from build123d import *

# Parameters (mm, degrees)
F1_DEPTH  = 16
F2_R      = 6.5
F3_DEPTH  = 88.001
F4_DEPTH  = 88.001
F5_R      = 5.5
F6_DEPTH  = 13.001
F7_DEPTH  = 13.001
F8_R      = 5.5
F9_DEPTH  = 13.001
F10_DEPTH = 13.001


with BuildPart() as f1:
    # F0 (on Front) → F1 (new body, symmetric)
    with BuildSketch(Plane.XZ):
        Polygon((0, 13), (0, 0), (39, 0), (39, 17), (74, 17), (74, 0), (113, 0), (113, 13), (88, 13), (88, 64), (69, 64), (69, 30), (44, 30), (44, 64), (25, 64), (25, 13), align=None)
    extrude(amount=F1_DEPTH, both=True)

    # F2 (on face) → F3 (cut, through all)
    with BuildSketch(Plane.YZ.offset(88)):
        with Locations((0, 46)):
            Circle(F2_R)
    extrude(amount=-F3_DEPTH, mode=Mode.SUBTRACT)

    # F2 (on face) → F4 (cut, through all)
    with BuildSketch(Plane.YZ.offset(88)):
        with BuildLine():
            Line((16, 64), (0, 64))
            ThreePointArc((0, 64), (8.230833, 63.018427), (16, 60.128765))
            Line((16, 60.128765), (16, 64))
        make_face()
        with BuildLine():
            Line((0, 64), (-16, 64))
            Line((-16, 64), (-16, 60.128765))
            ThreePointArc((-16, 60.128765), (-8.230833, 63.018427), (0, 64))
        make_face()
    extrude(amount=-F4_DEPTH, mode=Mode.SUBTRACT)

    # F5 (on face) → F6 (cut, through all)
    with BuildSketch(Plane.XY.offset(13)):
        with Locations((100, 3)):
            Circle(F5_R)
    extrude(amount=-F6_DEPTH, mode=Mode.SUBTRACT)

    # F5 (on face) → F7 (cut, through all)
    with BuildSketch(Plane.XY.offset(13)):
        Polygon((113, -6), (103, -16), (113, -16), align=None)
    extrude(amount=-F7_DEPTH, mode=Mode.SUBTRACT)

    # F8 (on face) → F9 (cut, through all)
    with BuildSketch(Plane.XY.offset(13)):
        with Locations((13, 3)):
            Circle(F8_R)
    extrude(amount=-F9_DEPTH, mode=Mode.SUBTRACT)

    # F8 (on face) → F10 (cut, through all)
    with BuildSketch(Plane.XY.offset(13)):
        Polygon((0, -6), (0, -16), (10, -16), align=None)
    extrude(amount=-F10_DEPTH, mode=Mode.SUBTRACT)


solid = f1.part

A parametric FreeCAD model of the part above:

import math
import FreeCAD as App
import Part
import Sketcher
Q = App.Units.Quantity


def add_polygon(sketch, points):
    """Adds a closed chain of lines whose ends are joined by coincident constraints."""
    first, n = sketch.GeometryCount, len(points)
    for a, b in zip(points, points[1:] + points[:1]):
        sketch.addGeometry(Part.LineSegment(App.Vector(*a, 0), App.Vector(*b, 0)), False)
    for i in range(n):
        sketch.addConstraint(Sketcher.Constraint("Coincident", first + i, 2, first + (i + 1) % n, 1))

doc = App.newDocument("Part")
body = doc.addObject("PartDesign::Body", "Body")

# Sketch on XZ plane
sketch1 = body.newObject("Sketcher::SketchObject", "Sketch")
sketch1.AttachmentSupport = (doc.getObject("XZ_Plane"), [""])
sketch1.MapMode = "FlatFace"
add_polygon(sketch1, [(0, 13), (0, 0), (39, 0), (39, 17), (74, 17), (74, 0), (113, 0), (113, 13), (88, 13), (88, 64), (69, 64), (69, 30), (44, 30), (44, 64), (25, 64), (25, 13)])  # lines 0-15
sketch1.addConstraint([
    Sketcher.Constraint("Vertical", 0),
    Sketcher.Constraint("Horizontal", 1),
    Sketcher.Constraint("Vertical", 2),
    Sketcher.Constraint("Horizontal", 3),
    Sketcher.Constraint("Vertical", 4),
    Sketcher.Constraint("Horizontal", 5),
    Sketcher.Constraint("Vertical", 6),
    Sketcher.Constraint("Horizontal", 7),
    Sketcher.Constraint("Vertical", 8),
    Sketcher.Constraint("Horizontal", 9),
    Sketcher.Constraint("Vertical", 10),
    Sketcher.Constraint("Horizontal", 11),
    Sketcher.Constraint("Vertical", 12),
    Sketcher.Constraint("Horizontal", 13),
    Sketcher.Constraint("Vertical", 14),
    Sketcher.Constraint("Horizontal", 15),
    Sketcher.Constraint("Coincident", 0, 2, -1, 1),
    Sketcher.Constraint("PointOnObject", 4, 2, -1),
    Sketcher.Constraint("Horizontal", 9, 2, 12, 2),
    Sketcher.Constraint("Horizontal", 7, 2, 14, 2),
    Sketcher.Constraint("Equal", 1, 5),
    Sketcher.Constraint("Equal", 7, 11),
    Sketcher.Constraint("Equal", 9, 13),
    Sketcher.Constraint("Equal", 11, 15),
    Sketcher.Constraint("DistanceX", 1, 1, 1, 2, Q("39 mm")),
    Sketcher.Constraint("DistanceX", 3, 1, 3, 2, Q("35 mm")),
    Sketcher.Constraint("DistanceX", 7, 2, 7, 1, Q("25 mm")),
    Sketcher.Constraint("DistanceY", 0, 2, 0, 1, Q("13 mm")),
    Sketcher.Constraint("DistanceY", 2, 1, 2, 2, Q("17 mm")),
    Sketcher.Constraint("DistanceY", 8, 1, 8, 2, Q("51 mm")),
    Sketcher.Constraint("DistanceY", 10, 2, 10, 1, Q("34 mm")),
])
pad1 = body.newObject("PartDesign::Pad", "Pad")
pad1.Profile = sketch1
pad1.Length = 32
pad1.Midplane = True

# Sketch on YZ plane
sketch2 = body.newObject("Sketcher::SketchObject", "Sketch001")
sketch2.AttachmentSupport = (doc.getObject("YZ_Plane"), [""])
sketch2.MapMode = "FlatFace"
sketch2.AttachmentOffset = App.Placement(App.Vector(0, 0, 88), App.Rotation())
sketch2.addGeometry(Part.Circle(App.Vector(0, 46, 0), App.Vector(0, 0, 1), 6), False)
sketch2.addConstraint([
    Sketcher.Constraint("PointOnObject", 0, 3, -2),
    Sketcher.Constraint("Diameter", 0, Q("13 mm")),
    Sketcher.Constraint("DistanceY", -1, 1, 0, 3, Q("46 mm")),
])
pocket1 = body.newObject("PartDesign::Pocket", "Pocket")
pocket1.Profile = sketch2
pocket1.Type = "ThroughAll"

# Sketch on YZ plane
sketch3 = body.newObject("Sketcher::SketchObject", "Sketch002")
sketch3.AttachmentSupport = (doc.getObject("YZ_Plane"), [""])
sketch3.MapMode = "FlatFace"
sketch3.AttachmentOffset = App.Placement(App.Vector(0, 0, 88), App.Rotation())
sketch3.addGeometry([
    Part.LineSegment(App.Vector(16, 64, 0), App.Vector(0, 64, 0)),  # 0
    Part.ArcOfCircle(Part.Circle(App.Vector(0, 29, 0), App.Vector(0, 0, 1), 35), math.radians(63), math.radians(90)),  # 1
    Part.LineSegment(App.Vector(16, 60.1, 0), App.Vector(16, 64, 0)),  # 2
    Part.LineSegment(App.Vector(0, 64, 0), App.Vector(-16, 64, 0)),  # 3
    Part.LineSegment(App.Vector(-16, 64, 0), App.Vector(-16, 60.1, 0)),  # 4
    Part.ArcOfCircle(Part.Circle(App.Vector(0, 29, 0), App.Vector(0, 0, 1), 35), math.radians(90), math.radians(117)),  # 5
], False)
sketch3.addConstraint([
    Sketcher.Constraint("Tangent", 0, 2, 1, 2),
    Sketcher.Constraint("Coincident", 1, 1, 2, 1),
    Sketcher.Constraint("Coincident", 2, 2, 0, 1),
    Sketcher.Constraint("Coincident", 3, 2, 4, 1),
    Sketcher.Constraint("Coincident", 4, 2, 5, 2),
    Sketcher.Constraint("Tangent", 5, 1, 3, 1),
    Sketcher.Constraint("Horizontal", 0),
    Sketcher.Constraint("Vertical", 2),
    Sketcher.Constraint("Horizontal", 3),
    Sketcher.Constraint("Vertical", 4),
    Sketcher.Constraint("Coincident", 5, 3, 1, 3),
    Sketcher.Constraint("Equal", 1, 5),
    Sketcher.Constraint("Symmetric", 1, 1, 4, 2, -2),
    Sketcher.Constraint("DistanceX", 0, 2, 0, 1, Q("16 mm")),
    Sketcher.Constraint("DistanceY", -1, 1, 0, 2, Q("64 mm")),
    Sketcher.Constraint("Radius", 1, Q("35.000009 mm")),
])
pocket2 = body.newObject("PartDesign::Pocket", "Pocket001")
pocket2.Profile = sketch3
pocket2.Type = "ThroughAll"

# Sketch on XY plane
sketch4 = body.newObject("Sketcher::SketchObject", "Sketch003")
sketch4.AttachmentSupport = (doc.getObject("XY_Plane"), [""])
sketch4.MapMode = "FlatFace"
sketch4.AttachmentOffset = App.Placement(App.Vector(0, 0, 13), App.Rotation())
sketch4.addGeometry(Part.Circle(App.Vector(100, 3, 0), App.Vector(0, 0, 1), 6), False)
sketch4.addConstraint([
    Sketcher.Constraint("Diameter", 0, Q("11 mm")),
    Sketcher.Constraint("DistanceX", -1, 1, 0, 3, Q("100 mm")),
    Sketcher.Constraint("DistanceY", -1, 1, 0, 3, Q("3 mm")),
])
pocket3 = body.newObject("PartDesign::Pocket", "Pocket002")
pocket3.Profile = sketch4
pocket3.Type = "ThroughAll"

# Sketch on XY plane
sketch5 = body.newObject("Sketcher::SketchObject", "Sketch004")
sketch5.AttachmentSupport = (doc.getObject("XY_Plane"), [""])
sketch5.MapMode = "FlatFace"
sketch5.AttachmentOffset = App.Placement(App.Vector(0, 0, 13), App.Rotation())
add_polygon(sketch5, [(113, -6), (103, -16), (113, -16)])  # lines 0-2
sketch5.addConstraint([
    Sketcher.Constraint("Horizontal", 1),
    Sketcher.Constraint("Vertical", 2),
    Sketcher.Constraint("Equal", 1, 2),
    Sketcher.Constraint("DistanceX", 1, 1, 1, 2, Q("10 mm")),
    Sketcher.Constraint("DistanceX", -1, 1, 0, 2, Q("103 mm")),
    Sketcher.Constraint("DistanceY", 0, 2, -1, 1, Q("16 mm")),
])
pocket4 = body.newObject("PartDesign::Pocket", "Pocket003")
pocket4.Profile = sketch5
pocket4.Type = "ThroughAll"

# Sketch on XY plane
sketch6 = body.newObject("Sketcher::SketchObject", "Sketch005")
sketch6.AttachmentSupport = (doc.getObject("XY_Plane"), [""])
sketch6.MapMode = "FlatFace"
sketch6.AttachmentOffset = App.Placement(App.Vector(0, 0, 13), App.Rotation())
sketch6.addGeometry(Part.Circle(App.Vector(13, 3, 0), App.Vector(0, 0, 1), 6), False)
sketch6.addConstraint([
    Sketcher.Constraint("Diameter", 0, Q("11 mm")),
    Sketcher.Constraint("DistanceX", -1, 1, 0, 3, Q("13 mm")),
    Sketcher.Constraint("DistanceY", -1, 1, 0, 3, Q("3 mm")),
])
pocket5 = body.newObject("PartDesign::Pocket", "Pocket004")
pocket5.Profile = sketch6
pocket5.Type = "ThroughAll"

# Sketch on XY plane
sketch7 = body.newObject("Sketcher::SketchObject", "Sketch006")
sketch7.AttachmentSupport = (doc.getObject("XY_Plane"), [""])
sketch7.MapMode = "FlatFace"
sketch7.AttachmentOffset = App.Placement(App.Vector(0, 0, 13), App.Rotation())
add_polygon(sketch7, [(0, -6), (0, -16), (10, -16)])  # lines 0-2
sketch7.addConstraint([
    Sketcher.Constraint("Vertical", 0),
    Sketcher.Constraint("Horizontal", 1),
    Sketcher.Constraint("PointOnObject", 0, 2, -2),
    Sketcher.Constraint("Equal", 1, 0),
    Sketcher.Constraint("DistanceX", 1, 1, 1, 2, Q("10 mm")),
    Sketcher.Constraint("DistanceY", 0, 2, -1, 1, Q("16 mm")),
])
pocket6 = body.newObject("PartDesign::Pocket", "Pocket005")
pocket6.Profile = sketch7
pocket6.Type = "ThroughAll"

doc.recompute()
